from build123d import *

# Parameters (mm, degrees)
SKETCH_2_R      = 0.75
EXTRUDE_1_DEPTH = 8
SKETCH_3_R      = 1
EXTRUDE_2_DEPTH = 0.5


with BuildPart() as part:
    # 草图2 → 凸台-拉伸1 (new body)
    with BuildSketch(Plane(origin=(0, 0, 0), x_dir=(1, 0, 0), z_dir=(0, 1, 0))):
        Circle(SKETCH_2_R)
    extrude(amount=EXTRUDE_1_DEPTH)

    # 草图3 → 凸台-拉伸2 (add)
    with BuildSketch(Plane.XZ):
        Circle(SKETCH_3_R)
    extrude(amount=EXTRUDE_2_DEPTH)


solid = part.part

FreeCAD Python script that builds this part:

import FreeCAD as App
import Part
import Sketcher

V = App.Vector

doc = App.newDocument("Part")
body = doc.addObject("PartDesign::Body", "Body")

# Sketch on XZ plane
sketch1 = body.newObject("Sketcher::SketchObject", "Sketch")
sketch1.AttachmentSupport = (doc.getObject("XZ_Plane"), [""])
sketch1.MapMode = "FlatFace"
sketch1.addGeometry(Part.Circle(V(0, 0, 0), V(0, 0, 1), 0.8), False)
sketch1.addConstraint(Sketcher.Constraint("Coincident", 0, 3, -1, 1))
sketch1.addConstraint(Sketcher.Constraint("Diameter", 0, 1.5))
pad1 = body.newObject("PartDesign::Pad", "Pad")
pad1.Profile = sketch1
pad1.Length = 8
pad1.Reversed = True

# Sketch on XZ plane
sketch2 = body.newObject("Sketcher::SketchObject", "Sketch001")
sketch2.AttachmentSupport = (doc.getObject("XZ_Plane"), [""])
sketch2.MapMode = "FlatFace"
sketch2.addGeometry(Part.Circle(V(0, 0, 0), V(0, 0, 1), 1), False)
sketch2.addConstraint(Sketcher.Constraint("Coincident", 0, 3, -1, 1))
sketch2.addConstraint(Sketcher.Constraint("Diameter", 0, 2.0))
pad2 = body.newObject("PartDesign::Pad", "Pad001")
pad2.Profile = sketch2
pad2.Length = 0.5

doc.recompute()
